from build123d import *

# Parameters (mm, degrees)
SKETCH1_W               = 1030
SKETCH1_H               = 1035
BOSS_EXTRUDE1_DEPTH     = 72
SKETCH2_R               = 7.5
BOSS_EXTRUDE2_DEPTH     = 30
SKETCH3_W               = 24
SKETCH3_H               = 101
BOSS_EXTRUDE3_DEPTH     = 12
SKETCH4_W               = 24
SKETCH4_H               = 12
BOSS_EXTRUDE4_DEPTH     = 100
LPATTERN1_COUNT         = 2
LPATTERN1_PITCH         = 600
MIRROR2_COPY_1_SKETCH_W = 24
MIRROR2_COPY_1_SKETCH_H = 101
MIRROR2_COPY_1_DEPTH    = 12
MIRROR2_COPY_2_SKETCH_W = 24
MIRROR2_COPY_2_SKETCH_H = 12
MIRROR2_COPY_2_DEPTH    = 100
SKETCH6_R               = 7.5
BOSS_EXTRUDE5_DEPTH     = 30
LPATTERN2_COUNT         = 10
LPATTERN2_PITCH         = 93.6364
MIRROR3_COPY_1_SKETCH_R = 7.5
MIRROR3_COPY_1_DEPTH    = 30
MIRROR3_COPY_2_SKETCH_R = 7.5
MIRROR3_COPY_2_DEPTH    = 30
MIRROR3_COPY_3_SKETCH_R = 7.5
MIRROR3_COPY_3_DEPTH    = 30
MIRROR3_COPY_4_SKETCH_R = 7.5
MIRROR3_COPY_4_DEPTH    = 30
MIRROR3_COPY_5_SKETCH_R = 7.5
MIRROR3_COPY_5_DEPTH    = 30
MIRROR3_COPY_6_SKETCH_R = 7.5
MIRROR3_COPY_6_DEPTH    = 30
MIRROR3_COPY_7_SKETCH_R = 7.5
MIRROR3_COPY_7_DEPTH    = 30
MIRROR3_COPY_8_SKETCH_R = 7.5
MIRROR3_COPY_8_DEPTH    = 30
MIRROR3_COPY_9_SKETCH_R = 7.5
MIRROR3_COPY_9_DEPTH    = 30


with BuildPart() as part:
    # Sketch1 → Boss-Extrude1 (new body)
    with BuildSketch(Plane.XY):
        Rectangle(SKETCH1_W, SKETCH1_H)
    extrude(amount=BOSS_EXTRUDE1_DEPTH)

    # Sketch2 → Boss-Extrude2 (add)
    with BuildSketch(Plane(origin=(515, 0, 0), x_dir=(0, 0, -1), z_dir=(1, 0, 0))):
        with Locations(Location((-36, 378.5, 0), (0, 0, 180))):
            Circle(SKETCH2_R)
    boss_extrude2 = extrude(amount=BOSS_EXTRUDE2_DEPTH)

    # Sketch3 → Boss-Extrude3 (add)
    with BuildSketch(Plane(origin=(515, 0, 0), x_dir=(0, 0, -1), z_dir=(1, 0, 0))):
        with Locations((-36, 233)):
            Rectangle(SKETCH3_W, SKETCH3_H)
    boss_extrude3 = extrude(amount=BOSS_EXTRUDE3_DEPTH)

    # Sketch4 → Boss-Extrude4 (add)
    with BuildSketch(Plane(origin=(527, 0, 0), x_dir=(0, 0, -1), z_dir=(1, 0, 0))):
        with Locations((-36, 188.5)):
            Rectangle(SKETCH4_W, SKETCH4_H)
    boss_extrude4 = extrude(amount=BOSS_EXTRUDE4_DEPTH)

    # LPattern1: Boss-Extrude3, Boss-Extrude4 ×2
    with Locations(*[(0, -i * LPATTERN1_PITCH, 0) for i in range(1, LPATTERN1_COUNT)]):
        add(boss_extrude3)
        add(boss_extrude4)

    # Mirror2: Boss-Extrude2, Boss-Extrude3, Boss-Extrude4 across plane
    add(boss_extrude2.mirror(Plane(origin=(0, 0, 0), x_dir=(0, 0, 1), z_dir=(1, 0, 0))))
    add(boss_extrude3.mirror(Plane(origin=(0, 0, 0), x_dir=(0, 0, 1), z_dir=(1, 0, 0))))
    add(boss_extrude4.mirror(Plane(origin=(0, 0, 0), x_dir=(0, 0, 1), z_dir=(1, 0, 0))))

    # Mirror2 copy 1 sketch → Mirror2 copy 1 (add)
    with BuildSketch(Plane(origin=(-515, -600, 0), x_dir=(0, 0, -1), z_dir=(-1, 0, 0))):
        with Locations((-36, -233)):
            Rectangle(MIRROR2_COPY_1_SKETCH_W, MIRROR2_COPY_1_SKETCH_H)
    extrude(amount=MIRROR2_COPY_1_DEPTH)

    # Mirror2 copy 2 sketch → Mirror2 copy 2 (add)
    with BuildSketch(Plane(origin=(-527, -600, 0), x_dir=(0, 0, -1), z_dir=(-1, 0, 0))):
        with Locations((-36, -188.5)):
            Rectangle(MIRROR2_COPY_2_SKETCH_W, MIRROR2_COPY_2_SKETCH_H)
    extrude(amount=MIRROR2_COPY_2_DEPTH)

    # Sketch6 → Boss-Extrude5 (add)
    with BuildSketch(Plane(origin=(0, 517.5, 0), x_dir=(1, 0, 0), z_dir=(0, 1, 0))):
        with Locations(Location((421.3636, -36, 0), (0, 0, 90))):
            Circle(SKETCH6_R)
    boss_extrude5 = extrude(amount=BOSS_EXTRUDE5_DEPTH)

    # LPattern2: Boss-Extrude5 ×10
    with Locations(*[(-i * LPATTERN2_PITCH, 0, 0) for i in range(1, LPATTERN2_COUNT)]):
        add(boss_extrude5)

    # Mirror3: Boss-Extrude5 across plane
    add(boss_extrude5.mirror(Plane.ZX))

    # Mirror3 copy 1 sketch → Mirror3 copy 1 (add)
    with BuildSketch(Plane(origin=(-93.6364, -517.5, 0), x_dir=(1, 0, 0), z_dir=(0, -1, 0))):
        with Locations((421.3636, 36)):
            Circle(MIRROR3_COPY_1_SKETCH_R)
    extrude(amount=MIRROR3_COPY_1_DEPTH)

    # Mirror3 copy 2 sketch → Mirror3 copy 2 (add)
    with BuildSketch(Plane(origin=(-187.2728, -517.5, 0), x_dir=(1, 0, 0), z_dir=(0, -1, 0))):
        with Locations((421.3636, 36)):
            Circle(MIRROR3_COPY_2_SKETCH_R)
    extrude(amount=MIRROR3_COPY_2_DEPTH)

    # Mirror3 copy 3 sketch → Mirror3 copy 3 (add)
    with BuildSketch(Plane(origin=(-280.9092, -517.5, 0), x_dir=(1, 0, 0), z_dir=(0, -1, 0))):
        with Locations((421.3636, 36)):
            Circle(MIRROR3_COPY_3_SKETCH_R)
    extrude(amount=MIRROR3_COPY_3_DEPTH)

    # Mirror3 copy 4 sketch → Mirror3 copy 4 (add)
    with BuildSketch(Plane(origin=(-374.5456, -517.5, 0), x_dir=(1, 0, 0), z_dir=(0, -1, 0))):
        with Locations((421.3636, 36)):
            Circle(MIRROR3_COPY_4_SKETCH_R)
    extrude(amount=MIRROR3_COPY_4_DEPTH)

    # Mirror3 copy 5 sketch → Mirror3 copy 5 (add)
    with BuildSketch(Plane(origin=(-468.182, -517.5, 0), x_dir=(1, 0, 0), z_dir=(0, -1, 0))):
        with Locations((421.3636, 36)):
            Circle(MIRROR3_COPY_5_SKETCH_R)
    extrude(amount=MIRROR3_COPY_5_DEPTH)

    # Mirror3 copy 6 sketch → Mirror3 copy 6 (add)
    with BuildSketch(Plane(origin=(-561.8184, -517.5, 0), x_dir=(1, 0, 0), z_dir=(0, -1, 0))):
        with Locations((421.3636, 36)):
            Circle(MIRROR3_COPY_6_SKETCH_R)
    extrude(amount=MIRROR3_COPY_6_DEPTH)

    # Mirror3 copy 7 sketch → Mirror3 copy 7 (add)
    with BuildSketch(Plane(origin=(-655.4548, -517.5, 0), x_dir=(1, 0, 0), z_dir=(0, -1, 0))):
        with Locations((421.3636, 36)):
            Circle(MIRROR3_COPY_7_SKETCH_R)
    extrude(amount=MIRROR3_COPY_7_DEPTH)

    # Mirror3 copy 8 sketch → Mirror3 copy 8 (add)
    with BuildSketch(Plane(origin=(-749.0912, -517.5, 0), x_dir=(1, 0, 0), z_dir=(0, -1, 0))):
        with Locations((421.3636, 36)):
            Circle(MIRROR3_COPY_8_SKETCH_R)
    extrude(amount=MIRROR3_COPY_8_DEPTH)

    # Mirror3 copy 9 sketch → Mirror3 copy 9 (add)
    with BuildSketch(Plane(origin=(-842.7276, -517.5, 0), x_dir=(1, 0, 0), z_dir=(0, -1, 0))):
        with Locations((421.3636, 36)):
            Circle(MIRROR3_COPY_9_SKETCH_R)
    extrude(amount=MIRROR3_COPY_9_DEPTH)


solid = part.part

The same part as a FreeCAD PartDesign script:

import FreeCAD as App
import Part
import Sketcher
from FreeCAD import Vector
Q = App.Units.Quantity

doc = App.newDocument("Part")
body = doc.addObject("PartDesign::Body", "Body")

sketch1 = body.newObject("Sketcher::SketchObject", "Sketch")
sketch1.AttachmentSupport = (doc.getObject("XY_Plane"), [""])
sketch1.MapMode = "FlatFace"
sketch1.addGeometry([
    Part.LineSegment(Vector(-515, 518, 0), Vector(-515, -518, 0)),
    Part.LineSegment(Vector(-515, -518, 0), Vector(515, -518, 0)),
    Part.LineSegment(Vector(515, -518, 0), Vector(515, 518, 0)),
    Part.LineSegment(Vector(515, 518, 0), Vector(-515, 518, 0)),
], False)
sketch1.addConstraint([
    Sketcher.Constraint("Coincident", 0, 2, 1, 1),
    Sketcher.Constraint("Coincident", 1, 2, 2, 1),
    Sketcher.Constraint("Coincident", 2, 2, 3, 1),
    Sketcher.Constraint("Coincident", 3, 2, 0, 1),
    Sketcher.Constraint("Vertical", 0),
    Sketcher.Constraint("Horizontal", 1),
    Sketcher.Constraint("Vertical", 2),
    Sketcher.Constraint("Horizontal", 3),
    Sketcher.Constraint("Symmetric", 0, 2, 2, 2, -1, 1),
    Sketcher.Constraint("DistanceX", 1, 1, 1, 2, Q("1030 mm")),
    Sketcher.Constraint("DistanceY", 0, 2, 0, 1, Q("1035 mm")),
])
pad1 = body.newObject("PartDesign::Pad", "Pad")
pad1.Profile = sketch1
pad1.Length = 72

sketch2 = body.newObject("Sketcher::SketchObject", "Sketch001")
sketch2.AttachmentSupport = (doc.getObject("YZ_Plane"), [""])
sketch2.MapMode = "FlatFace"
sketch2.AttachmentOffset = App.Placement(Vector(0, 0, 515), App.Rotation())
sketch2.addGeometry(Part.Circle(Vector(378, 36, 0), Vector(0, 0, 1), 8), False)
sketch2.addConstraint([
    Sketcher.Constraint("Diameter", 0, Q("15 mm")),
    Sketcher.Constraint("DistanceY", -1, 1, 0, 3, Q("36 mm")),
    Sketcher.Constraint("DistanceX", -1, 1, 0, 3, Q("378.5 mm")),
])
pad2 = body.newObject("PartDesign::Pad", "Pad001")
pad2.Profile = sketch2
pad2.Length = 30

sketch3 = body.newObject("Sketcher::SketchObject", "Sketch002")
sketch3.AttachmentSupport = (doc.getObject("YZ_Plane"), [""])
sketch3.MapMode = "FlatFace"
sketch3.AttachmentOffset = App.Placement(Vector(0, 0, 515), App.Rotation())
sketch3.addGeometry([
    Part.LineSegment(Vector(284, 48, 0), Vector(182, 48, 0)),
    Part.LineSegment(Vector(182, 48, 0), Vector(182, 24, 0)),
    Part.LineSegment(Vector(182, 24, 0), Vector(284, 24, 0)),
    Part.LineSegment(Vector(284, 24, 0), Vector(284, 48, 0)),
], False)
sketch3.addConstraint([
    Sketcher.Constraint("Coincident", 0, 2, 1, 1),
    Sketcher.Constraint("Coincident", 1, 2, 2, 1),
    Sketcher.Constraint("Coincident", 2, 2, 3, 1),
    Sketcher.Constraint("Coincident", 3, 2, 0, 1),
    Sketcher.Constraint("Horizontal", 0),
    Sketcher.Constraint("Vertical", 1),
    Sketcher.Constraint("Horizontal", 2),
    Sketcher.Constraint("Vertical", 3),
    Sketcher.Constraint("DistanceX", 0, 2, 0, 1, Q("101 mm")),
    Sketcher.Constraint("DistanceY", 1, 2, 1, 1, Q("24 mm")),
    Sketcher.Constraint("DistanceY", -1, 1, 0, 2, Q("48 mm")),
    Sketcher.Constraint("DistanceX", -1, 1, 0, 2, Q("182.5 mm")),
])
pad3 = body.newObject("PartDesign::Pad", "Pad002")
pad3.Profile = sketch3
pad3.Length = 12

sketch4 = body.newObject("Sketcher::SketchObject", "Sketch003")
sketch4.AttachmentSupport = (doc.getObject("YZ_Plane"), [""])
sketch4.MapMode = "FlatFace"
sketch4.AttachmentOffset = App.Placement(Vector(0, 0, 527), App.Rotation())
sketch4.addGeometry([
    Part.LineSegment(Vector(194, 48, 0), Vector(182, 48, 0)),
    Part.LineSegment(Vector(182, 48, 0), Vector(182, 24, 0)),
    Part.LineSegment(Vector(182, 24, 0), Vector(194, 24, 0)),
    Part.LineSegment(Vector(194, 24, 0), Vector(194, 48, 0)),
], False)
sketch4.addConstraint([
    Sketcher.Constraint("Coincident", 0, 2, 1, 1),
    Sketcher.Constraint("Coincident", 1, 2, 2, 1),
    Sketcher.Constraint("Coincident", 2, 2, 3, 1),
    Sketcher.Constraint("Coincident", 3, 2, 0, 1),
    Sketcher.Constraint("Horizontal", 0),
    Sketcher.Constraint("Vertical", 1),
    Sketcher.Constraint("Horizontal", 2),
    Sketcher.Constraint("Vertical", 3),
    Sketcher.Constraint("DistanceX", 0, 2, 0, 1, Q("12 mm")),
    Sketcher.Constraint("DistanceY", 1, 2, 1, 1, Q("24 mm")),
    Sketcher.Constraint("DistanceY", -1, 1, 0, 2, Q("48 mm")),
    Sketcher.Constraint("DistanceX", -1, 1, 0, 2, Q("182.5 mm")),
])
pad4 = body.newObject("PartDesign::Pad", "Pad003")
pad4.Profile = sketch4
pad4.Length = 100
doc.recompute()

linearpattern = body.newObject("PartDesign::LinearPattern", "LinearPattern")
linearpattern.Originals = [pad3, pad4]
linearpattern.Direction = (doc.getObject("Y_Axis"), [""])
linearpattern.Mode = "offset"
linearpattern.Offset = 600
linearpattern.Occurrences = 2
linearpattern.Reversed = True
body.Tip = linearpattern
doc.recompute()

mirrored = body.newObject("PartDesign::Mirrored", "Mirrored")
mirrored.Originals = [pad2, pad3, pad4]
mirrored.MirrorPlane = (doc.getObject("YZ_Plane"), [""])
body.Tip = mirrored

sketch5 = body.newObject("Sketcher::SketchObject", "Sketch004")
sketch5.AttachmentSupport = (doc.getObject("YZ_Plane"), [""])
sketch5.MapMode = "FlatFace"
sketch5.AttachmentOffset = App.Placement(Vector(0, 0, -515), App.Rotation())
sketch5.addGeometry([
    Part.LineSegment(Vector(-418, 48, 0), Vector(-316, 48, 0)),
    Part.LineSegment(Vector(-316, 48, 0), Vector(-316, 24, 0)),
    Part.LineSegment(Vector(-316, 24, 0), Vector(-418, 24, 0)),
    Part.LineSegment(Vector(-418, 24, 0), Vector(-418, 48, 0)),
], False)
sketch5.addConstraint([
    Sketcher.Constraint("Coincident", 0, 2, 1, 1),
    Sketcher.Constraint("Coincident", 1, 2, 2, 1),
    Sketcher.Constraint("Coincident", 2, 2, 3, 1),
    Sketcher.Constraint("Coincident", 3, 2, 0, 1),
    Sketcher.Constraint("Horizontal", 0),
    Sketcher.Constraint("Vertical", 1),
    Sketcher.Constraint("Horizontal", 2),
    Sketcher.Constraint("Vertical", 3),
    Sketcher.Constraint("DistanceX", 0, 1, 0, 2, Q("101 mm")),
    Sketcher.Constraint("DistanceY", 1, 2, 1, 1, Q("24 mm")),
    Sketcher.Constraint("DistanceY", -1, 1, 0, 2, Q("48 mm")),
    Sketcher.Constraint("DistanceX", 0, 2, -1, 1, Q("316.5 mm")),
])
pad5 = body.newObject("PartDesign::Pad", "Pad004")
pad5.Profile = sketch5
pad5.Length = 12
pad5.Reversed = True

sketch6 = body.newObject("Sketcher::SketchObject", "Sketch005")
sketch6.AttachmentSupport = (doc.getObject("YZ_Plane"), [""])
sketch6.MapMode = "FlatFace"
sketch6.AttachmentOffset = App.Placement(Vector(0, 0, -527), App.Rotation())
sketch6.addGeometry([
    Part.LineSegment(Vector(-418, 48, 0), Vector(-406, 48, 0)),
    Part.LineSegment(Vector(-406, 48, 0), Vector(-406, 24, 0)),
    Part.LineSegment(Vector(-406, 24, 0), Vector(-418, 24, 0)),
    Part.LineSegment(Vector(-418, 24, 0), Vector(-418, 48, 0)),
], False)
sketch6.addConstraint([
    Sketcher.Constraint("Coincident", 0, 2, 1, 1),
    Sketcher.Constraint("Coincident", 1, 2, 2, 1),
    Sketcher.Constraint("Coincident", 2, 2, 3, 1),
    Sketcher.Constraint("Coincident", 3, 2, 0, 1),
    Sketcher.Constraint("Horizontal", 0),
    Sketcher.Constraint("Vertical", 1),
    Sketcher.Constraint("Horizontal", 2),
    Sketcher.Constraint("Vertical", 3),
    Sketcher.Constraint("DistanceX", 0, 1, 0, 2, Q("12 mm")),
    Sketcher.Constraint("DistanceY", 1, 2, 1, 1, Q("24 mm")),
    Sketcher.Constraint("DistanceY", -1, 1, 0, 2, Q("48 mm")),
    Sketcher.Constraint("DistanceX", 0, 2, -1, 1, Q("405.5 mm")),
])
pad6 = body.newObject("PartDesign::Pad", "Pad005")
pad6.Profile = sketch6
pad6.Length = 100
pad6.Reversed = True

sketch7 = body.newObject("Sketcher::SketchObject", "Sketch006")
sketch7.AttachmentSupport = (doc.getObject("XZ_Plane"), [""])
sketch7.MapMode = "FlatFace"
sketch7.AttachmentOffset = App.Placement(Vector(0, 0, -517.5), App.Rotation())
sketch7.addGeometry(Part.Circle(Vector(421, 36, 0), Vector(0, 0, 1), 8), False)
sketch7.addConstraint([
    Sketcher.Constraint("Diameter", 0, Q("15 mm")),
    Sketcher.Constraint("DistanceY", -1, 1, 0, 3, Q("36 mm")),
    Sketcher.Constraint("DistanceX", -1, 1, 0, 3, Q("421.3636 mm")),
])
pad7 = body.newObject("PartDesign::Pad", "Pad006")
pad7.Profile = sketch7
pad7.Length = 30
pad7.Reversed = True
doc.recompute()

linearpattern2 = body.newObject("PartDesign::LinearPattern", "LinearPattern001")
linearpattern2.Originals = [pad7]
linearpattern2.Direction = (doc.getObject("X_Axis"), [""])
linearpattern2.Mode = "offset"
linearpattern2.Offset = 93.6364
linearpattern2.Occurrences = 10
linearpattern2.Reversed = True
body.Tip = linearpattern2
doc.recompute()

mirrored2 = body.newObject("PartDesign::Mirrored", "Mirrored001")
mirrored2.Originals = [pad7]
mirrored2.MirrorPlane = (doc.getObject("XZ_Plane"), [""])
body.Tip = mirrored2

sketch8 = body.newObject("Sketcher::SketchObject", "Sketch007")
sketch8.AttachmentSupport = (doc.getObject("XZ_Plane"), [""])
sketch8.MapMode = "FlatFace"
sketch8.AttachmentOffset = App.Placement(Vector(0, 0, 517.5), App.Rotation())
sketch8.addGeometry(Part.Circle(Vector(328, 36, 0), Vector(0, 0, 1), 8), False)
sketch8.addConstraint([
    Sketcher.Constraint("Diameter", 0, Q("15 mm")),
    Sketcher.Constraint("DistanceY", -1, 1, 0, 3, Q("36 mm")),
    Sketcher.Constraint("DistanceX", -1, 1, 0, 3, Q("327.7272 mm")),
])
pad8 = body.newObject("PartDesign::Pad", "Pad007")
pad8.Profile = sketch8
pad8.Length = 30

sketch9 = body.newObject("Sketcher::SketchObject", "Sketch008")
sketch9.AttachmentSupport = (doc.getObject("XZ_Plane"), [""])
sketch9.MapMode = "FlatFace"
sketch9.AttachmentOffset = App.Placement(Vector(0, 0, 517.5), App.Rotation())
sketch9.addGeometry(Part.Circle(Vector(234, 36, 0), Vector(0, 0, 1), 8), False)
sketch9.addConstraint([
    Sketcher.Constraint("Diameter", 0, Q("15 mm")),
    Sketcher.Constraint("DistanceY", -1, 1, 0, 3, Q("36 mm")),
    Sketcher.Constraint("DistanceX", -1, 1, 0, 3, Q("234.0908 mm")),
])
pad9 = body.newObject("PartDesign::Pad", "Pad008")
pad9.Profile = sketch9
pad9.Length = 30

sketch10 = body.newObject("Sketcher::SketchObject", "Sketch009")
sketch10.AttachmentSupport = (doc.getObject("XZ_Plane"), [""])
sketch10.MapMode = "FlatFace"
sketch10.AttachmentOffset = App.Placement(Vector(0, 0, 517.5), App.Rotation())
sketch10.addGeometry(Part.Circle(Vector(140, 36, 0), Vector(0, 0, 1), 8), False)
sketch10.addConstraint([
    Sketcher.Constraint("Diameter", 0, Q("15 mm")),
    Sketcher.Constraint("DistanceY", -1, 1, 0, 3, Q("36 mm")),
    Sketcher.Constraint("DistanceX", -1, 1, 0, 3, Q("140.4544 mm")),
])
pad10 = body.newObject("PartDesign::Pad", "Pad009")
pad10.Profile = sketch10
pad10.Length = 30

sketch11 = body.newObject("Sketcher::SketchObject", "Sketch010")
sketch11.AttachmentSupport = (doc.getObject("XZ_Plane"), [""])
sketch11.MapMode = "FlatFace"
sketch11.AttachmentOffset = App.Placement(Vector(0, 0, 517.5), App.Rotation())
sketch11.addGeometry(Part.Circle(Vector(47, 36, 0), Vector(0, 0, 1), 8), False)
sketch11.addConstraint([
    Sketcher.Constraint("Diameter", 0, Q("15 mm")),
    Sketcher.Constraint("DistanceY", -1, 1, 0, 3, Q("36 mm")),
    Sketcher.Constraint("DistanceX", -1, 1, 0, 3, Q("46.818 mm")),
])
pad11 = body.newObject("PartDesign::Pad", "Pad010")
pad11.Profile = sketch11
pad11.Length = 30

sketch12 = body.newObject("Sketcher::SketchObject", "Sketch011")
sketch12.AttachmentSupport = (doc.getObject("XZ_Plane"), [""])
sketch12.MapMode = "FlatFace"
sketch12.AttachmentOffset = App.Placement(Vector(0, 0, 517.5), App.Rotation())
sketch12.addGeometry(Part.Circle(Vector(-47, 36, 0), Vector(0, 0, 1), 8), False)
sketch12.addConstraint([
    Sketcher.Constraint("Diameter", 0, Q("15 mm")),
    Sketcher.Constraint("DistanceY", -1, 1, 0, 3, Q("36 mm")),
    Sketcher.Constraint("DistanceX", 0, 3, -1, 1, Q("46.8184 mm")),
])
pad12 = body.newObject("PartDesign::Pad", "Pad011")
pad12.Profile = sketch12
pad12.Length = 30

sketch13 = body.newObject("Sketcher::SketchObject", "Sketch012")
sketch13.AttachmentSupport = (doc.getObject("XZ_Plane"), [""])
sketch13.MapMode = "FlatFace"
sketch13.AttachmentOffset = App.Placement(Vector(0, 0, 517.5), App.Rotation())
sketch13.addGeometry(Part.Circle(Vector(-140, 36, 0), Vector(0, 0, 1), 8), False)
sketch13.addConstraint([
    Sketcher.Constraint("Diameter", 0, Q("15 mm")),
    Sketcher.Constraint("DistanceY", -1, 1, 0, 3, Q("36 mm")),
    Sketcher.Constraint("DistanceX", 0, 3, -1, 1, Q("140.4548 mm")),
])
pad13 = body.newObject("PartDesign::Pad", "Pad012")
pad13.Profile = sketch13
pad13.Length = 30

sketch14 = body.newObject("Sketcher::SketchObject", "Sketch013")
sketch14.AttachmentSupport = (doc.getObject("XZ_Plane"), [""])
sketch14.MapMode = "FlatFace"
sketch14.AttachmentOffset = App.Placement(Vector(0, 0, 517.5), App.Rotation())
sketch14.addGeometry(Part.Circle(Vector(-234, 36, 0), Vector(0, 0, 1), 8), False)
sketch14.addConstraint([
    Sketcher.Constraint("Diameter", 0, Q("15 mm")),
    Sketcher.Constraint("DistanceY", -1, 1, 0, 3, Q("36 mm")),
    Sketcher.Constraint("DistanceX", 0, 3, -1, 1, Q("234.0912 mm")),
])
pad14 = body.newObject("PartDesign::Pad", "Pad013")
pad14.Profile = sketch14
pad14.Length = 30

sketch15 = body.newObject("Sketcher::SketchObject", "Sketch014")
sketch15.AttachmentSupport = (doc.getObject("XZ_Plane"), [""])
sketch15.MapMode = "FlatFace"
sketch15.AttachmentOffset = App.Placement(Vector(0, 0, 517.5), App.Rotation())
sketch15.addGeometry(Part.Circle(Vector(-328, 36, 0), Vector(0, 0, 1), 8), False)
sketch15.addConstraint([
    Sketcher.Constraint("Diameter", 0, Q("15 mm")),
    Sketcher.Constraint("DistanceY", -1, 1, 0, 3, Q("36 mm")),
    Sketcher.Constraint("DistanceX", 0, 3, -1, 1, Q("327.7276 mm")),
])
pad15 = body.newObject("PartDesign::Pad", "Pad014")
pad15.Profile = sketch15
pad15.Length = 30

sketch16 = body.newObject("Sketcher::SketchObject", "Sketch015")
sketch16.AttachmentSupport = (doc.getObject("XZ_Plane"), [""])
sketch16.MapMode = "FlatFace"
sketch16.AttachmentOffset = App.Placement(Vector(0, 0, 517.5), App.Rotation())
sketch16.addGeometry(Part.Circle(Vector(-421, 36, 0), Vector(0, 0, 1), 8), False)
sketch16.addConstraint([
    Sketcher.Constraint("Diameter", 0, Q("15 mm")),
    Sketcher.Constraint("DistanceY", -1, 1, 0, 3, Q("36 mm")),
    Sketcher.Constraint("DistanceX", 0, 3, -1, 1, Q("421.364 mm")),
])
pad16 = body.newObject("PartDesign::Pad", "Pad015")
pad16.Profile = sketch16
pad16.Length = 30

doc.recompute()
